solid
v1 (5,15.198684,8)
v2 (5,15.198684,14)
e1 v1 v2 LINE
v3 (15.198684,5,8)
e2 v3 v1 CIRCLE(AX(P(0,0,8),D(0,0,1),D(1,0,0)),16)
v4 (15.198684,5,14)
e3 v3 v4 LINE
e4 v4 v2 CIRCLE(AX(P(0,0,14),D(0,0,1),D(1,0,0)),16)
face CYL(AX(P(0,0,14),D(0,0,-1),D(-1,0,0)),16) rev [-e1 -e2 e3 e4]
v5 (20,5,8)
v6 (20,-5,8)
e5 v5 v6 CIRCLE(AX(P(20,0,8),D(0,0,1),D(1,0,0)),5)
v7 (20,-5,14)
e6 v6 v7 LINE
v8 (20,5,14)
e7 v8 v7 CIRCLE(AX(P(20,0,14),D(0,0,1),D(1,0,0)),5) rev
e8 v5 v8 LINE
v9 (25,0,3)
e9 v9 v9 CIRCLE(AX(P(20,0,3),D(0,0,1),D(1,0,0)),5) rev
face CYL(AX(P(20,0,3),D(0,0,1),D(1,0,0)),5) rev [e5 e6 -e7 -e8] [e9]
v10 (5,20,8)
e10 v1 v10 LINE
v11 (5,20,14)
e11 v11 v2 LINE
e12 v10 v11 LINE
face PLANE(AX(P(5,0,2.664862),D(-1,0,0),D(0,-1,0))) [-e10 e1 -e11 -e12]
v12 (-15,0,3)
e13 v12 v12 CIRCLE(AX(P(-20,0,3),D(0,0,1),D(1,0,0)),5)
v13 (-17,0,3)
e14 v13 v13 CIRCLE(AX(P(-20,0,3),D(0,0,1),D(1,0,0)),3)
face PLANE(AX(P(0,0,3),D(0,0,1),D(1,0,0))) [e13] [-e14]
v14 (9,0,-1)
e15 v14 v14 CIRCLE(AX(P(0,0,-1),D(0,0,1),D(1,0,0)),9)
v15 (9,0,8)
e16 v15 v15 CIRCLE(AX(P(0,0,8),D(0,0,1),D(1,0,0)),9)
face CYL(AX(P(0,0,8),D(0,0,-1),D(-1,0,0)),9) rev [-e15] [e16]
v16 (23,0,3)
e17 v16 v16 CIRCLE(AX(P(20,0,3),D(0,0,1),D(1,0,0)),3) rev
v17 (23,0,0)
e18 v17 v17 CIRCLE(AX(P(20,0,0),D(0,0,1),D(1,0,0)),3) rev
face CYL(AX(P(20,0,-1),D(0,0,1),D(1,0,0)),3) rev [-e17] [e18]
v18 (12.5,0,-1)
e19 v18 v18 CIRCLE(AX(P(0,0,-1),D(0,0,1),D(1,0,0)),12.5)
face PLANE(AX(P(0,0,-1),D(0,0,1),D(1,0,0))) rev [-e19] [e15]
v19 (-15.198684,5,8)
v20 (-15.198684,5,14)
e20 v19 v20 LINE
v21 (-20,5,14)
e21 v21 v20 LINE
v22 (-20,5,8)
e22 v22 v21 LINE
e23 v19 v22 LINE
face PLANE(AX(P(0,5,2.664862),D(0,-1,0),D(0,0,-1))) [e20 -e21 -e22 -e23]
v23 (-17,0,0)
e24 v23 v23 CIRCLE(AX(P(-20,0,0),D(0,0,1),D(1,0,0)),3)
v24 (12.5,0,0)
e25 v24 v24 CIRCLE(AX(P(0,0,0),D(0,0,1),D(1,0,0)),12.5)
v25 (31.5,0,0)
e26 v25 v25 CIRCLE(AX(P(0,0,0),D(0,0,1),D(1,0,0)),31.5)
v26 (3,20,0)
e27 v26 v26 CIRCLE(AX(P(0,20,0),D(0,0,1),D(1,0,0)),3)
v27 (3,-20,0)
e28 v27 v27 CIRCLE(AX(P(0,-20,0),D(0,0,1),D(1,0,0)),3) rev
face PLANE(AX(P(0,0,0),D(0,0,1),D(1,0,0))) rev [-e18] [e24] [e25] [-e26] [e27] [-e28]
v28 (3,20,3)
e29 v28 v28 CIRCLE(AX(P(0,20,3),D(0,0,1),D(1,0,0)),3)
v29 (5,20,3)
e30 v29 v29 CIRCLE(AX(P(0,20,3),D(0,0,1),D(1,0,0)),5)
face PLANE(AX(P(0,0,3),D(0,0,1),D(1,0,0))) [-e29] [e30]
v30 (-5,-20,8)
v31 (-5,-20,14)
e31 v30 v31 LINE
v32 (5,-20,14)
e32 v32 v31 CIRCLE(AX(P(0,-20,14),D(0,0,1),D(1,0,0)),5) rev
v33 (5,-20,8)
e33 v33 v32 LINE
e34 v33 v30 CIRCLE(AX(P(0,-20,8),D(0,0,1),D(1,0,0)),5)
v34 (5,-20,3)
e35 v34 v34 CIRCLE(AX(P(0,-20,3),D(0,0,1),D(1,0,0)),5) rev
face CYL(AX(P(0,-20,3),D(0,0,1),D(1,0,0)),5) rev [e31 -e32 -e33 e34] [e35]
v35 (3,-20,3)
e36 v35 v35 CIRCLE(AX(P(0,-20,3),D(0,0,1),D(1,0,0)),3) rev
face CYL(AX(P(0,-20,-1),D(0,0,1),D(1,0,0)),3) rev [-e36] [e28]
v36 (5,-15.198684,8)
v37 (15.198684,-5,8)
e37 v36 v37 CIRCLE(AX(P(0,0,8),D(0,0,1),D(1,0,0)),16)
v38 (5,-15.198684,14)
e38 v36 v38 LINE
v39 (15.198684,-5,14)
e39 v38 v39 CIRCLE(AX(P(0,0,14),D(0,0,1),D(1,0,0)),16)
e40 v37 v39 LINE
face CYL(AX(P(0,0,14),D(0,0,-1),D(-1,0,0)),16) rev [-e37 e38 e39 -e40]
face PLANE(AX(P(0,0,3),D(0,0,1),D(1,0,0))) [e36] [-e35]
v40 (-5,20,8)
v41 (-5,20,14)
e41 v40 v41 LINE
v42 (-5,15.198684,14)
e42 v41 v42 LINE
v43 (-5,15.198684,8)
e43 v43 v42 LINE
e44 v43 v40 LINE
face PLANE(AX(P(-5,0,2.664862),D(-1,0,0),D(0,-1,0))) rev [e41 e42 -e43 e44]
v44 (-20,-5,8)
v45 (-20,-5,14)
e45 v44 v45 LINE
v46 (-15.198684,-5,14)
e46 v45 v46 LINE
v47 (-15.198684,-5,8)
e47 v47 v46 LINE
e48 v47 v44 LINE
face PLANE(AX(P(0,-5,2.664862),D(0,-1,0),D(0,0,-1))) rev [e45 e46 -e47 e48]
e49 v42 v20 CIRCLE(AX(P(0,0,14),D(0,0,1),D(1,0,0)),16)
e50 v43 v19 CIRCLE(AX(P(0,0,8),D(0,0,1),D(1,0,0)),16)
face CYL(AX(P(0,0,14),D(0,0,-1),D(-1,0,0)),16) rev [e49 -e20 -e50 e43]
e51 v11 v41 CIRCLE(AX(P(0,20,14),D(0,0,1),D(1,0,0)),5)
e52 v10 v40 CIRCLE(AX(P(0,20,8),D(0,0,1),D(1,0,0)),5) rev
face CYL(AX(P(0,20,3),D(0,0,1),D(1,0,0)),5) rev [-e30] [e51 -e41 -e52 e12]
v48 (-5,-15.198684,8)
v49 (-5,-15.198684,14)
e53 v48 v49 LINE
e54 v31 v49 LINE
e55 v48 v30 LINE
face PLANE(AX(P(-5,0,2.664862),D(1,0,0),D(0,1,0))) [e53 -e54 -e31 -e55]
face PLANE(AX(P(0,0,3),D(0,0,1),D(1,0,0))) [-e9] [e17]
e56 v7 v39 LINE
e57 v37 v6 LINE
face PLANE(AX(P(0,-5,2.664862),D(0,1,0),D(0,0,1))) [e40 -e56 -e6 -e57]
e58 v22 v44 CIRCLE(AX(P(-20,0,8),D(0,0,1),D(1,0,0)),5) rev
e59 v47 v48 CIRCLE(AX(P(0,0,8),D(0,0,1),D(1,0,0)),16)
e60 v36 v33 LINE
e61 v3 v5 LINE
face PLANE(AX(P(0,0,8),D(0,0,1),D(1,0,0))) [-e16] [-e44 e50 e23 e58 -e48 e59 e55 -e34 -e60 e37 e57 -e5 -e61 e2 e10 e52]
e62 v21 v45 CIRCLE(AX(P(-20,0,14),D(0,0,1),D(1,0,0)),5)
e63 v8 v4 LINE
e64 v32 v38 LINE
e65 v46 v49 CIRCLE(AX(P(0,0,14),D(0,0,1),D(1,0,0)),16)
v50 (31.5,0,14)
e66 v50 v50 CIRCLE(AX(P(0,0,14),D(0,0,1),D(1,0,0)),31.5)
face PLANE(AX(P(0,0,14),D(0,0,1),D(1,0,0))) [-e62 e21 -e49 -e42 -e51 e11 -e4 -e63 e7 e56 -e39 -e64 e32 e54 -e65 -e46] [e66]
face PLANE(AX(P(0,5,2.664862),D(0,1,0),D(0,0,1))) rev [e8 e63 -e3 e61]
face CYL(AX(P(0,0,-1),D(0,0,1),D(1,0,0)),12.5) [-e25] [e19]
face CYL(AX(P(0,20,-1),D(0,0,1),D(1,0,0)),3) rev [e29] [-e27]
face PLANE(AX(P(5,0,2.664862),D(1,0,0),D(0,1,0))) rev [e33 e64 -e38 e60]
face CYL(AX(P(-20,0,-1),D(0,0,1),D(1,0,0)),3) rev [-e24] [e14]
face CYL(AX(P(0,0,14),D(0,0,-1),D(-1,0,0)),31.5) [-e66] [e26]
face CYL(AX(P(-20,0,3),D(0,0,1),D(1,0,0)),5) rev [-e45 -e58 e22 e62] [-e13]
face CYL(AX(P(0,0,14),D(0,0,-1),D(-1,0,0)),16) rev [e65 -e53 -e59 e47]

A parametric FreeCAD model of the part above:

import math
import FreeCAD as App
import Part
import Sketcher
from FreeCAD import Vector
Q = App.Units.Quantity

doc = App.newDocument("Part")
body = doc.addObject("PartDesign::Body", "Body")

# Sketch on XY plane
sketch1 = doc.addObject("Sketcher::SketchObject", "Sketch")
body.addObject(sketch1)
sketch1.AttachmentSupport = (doc.XY_Plane, [""])
sketch1.MapMode = "FlatFace"
sketch1.addGeometry([
    Part.Circle(Vector(0, 0, 0), Vector(0, 0, 1), 31.5),
    Part.Circle(Vector(0, 0, 0), Vector(0, 0, 1), 16),
], False)
sketch1.addConstraint([
    Sketcher.Constraint("Coincident", 0, 3, -1, 1),
    Sketcher.Constraint("Coincident", 1, 3, -1, 1),
    Sketcher.Constraint("Diameter", 0, Q("63 mm")),
    Sketcher.Constraint("Diameter", 1, Q("32 mm")),
])
pad1 = doc.addObject("PartDesign::Pad", "Pad")
body.addObject(pad1)
pad1.Profile = sketch1
pad1.Length = 14

# Sketch on XY plane
sketch2 = doc.addObject("Sketcher::SketchObject", "Sketch001")
body.addObject(sketch2)
sketch2.AttachmentSupport = (doc.XY_Plane, [""])
sketch2.MapMode = "FlatFace"
sketch2.addGeometry([
    Part.Circle(Vector(0, 0, 0), Vector(0, 0, 1), 16),
    Part.Circle(Vector(0, 0, 0), Vector(0, 0, 1), 9),
], False)
sketch2.addConstraint([
    Sketcher.Constraint("Coincident", 0, 3, -1, 1),
    Sketcher.Constraint("Coincident", 1, 3, -1, 1),
    Sketcher.Constraint("Diameter", 0, Q("32 mm")),
    Sketcher.Constraint("Diameter", 1, Q("18 mm")),
])
pad2 = doc.addObject("PartDesign::Pad", "Pad001")
body.addObject(pad2)
pad2.Profile = sketch2
pad2.Length = 8

# Sketch on XY plane
sketch3 = doc.addObject("Sketcher::SketchObject", "Sketch002")
body.addObject(sketch3)
sketch3.AttachmentSupport = (doc.XY_Plane, [""])
sketch3.MapMode = "FlatFace"
sketch3.addGeometry([
    Part.Circle(Vector(0, 0, 0), Vector(0, 0, 1), 12.5),
    Part.Circle(Vector(0, 0, 0), Vector(0, 0, 1), 9),
], False)
sketch3.addConstraint([
    Sketcher.Constraint("Coincident", 0, 3, -1, 1),
    Sketcher.Constraint("Coincident", 1, 3, -1, 1),
    Sketcher.Constraint("Diameter", 0, Q("25 mm")),
    Sketcher.Constraint("Diameter", 1, Q("18 mm")),
])
pad3 = doc.addObject("PartDesign::Pad", "Pad002")
body.addObject(pad3)
pad3.Profile = sketch3
pad3.Length = 1
pad3.Reversed = True

# Sketch on XY plane
sketch4 = doc.addObject("Sketcher::SketchObject", "Sketch003")
body.addObject(sketch4)
sketch4.AttachmentSupport = (doc.XY_Plane, [""])
sketch4.MapMode = "FlatFace"
sketch4.AttachmentOffset = App.Placement(Vector(0, 0, 14), App.Rotation())
sketch4.addGeometry([
    Part.Circle(Vector(-20, 0, 0), Vector(0, 0, 1), 3),
    Part.Circle(Vector(0, 20, 0), Vector(0, 0, 1), 3),
    Part.Circle(Vector(20, 0, 0), Vector(0, 0, 1), 3),
    Part.Circle(Vector(0, -20, 0), Vector(0, 0, 1), 3),
], False)
sketch4.addConstraint([
    Sketcher.Constraint("Equal", 0, 1),
    Sketcher.Constraint("Equal", 1, 2),
    Sketcher.Constraint("Equal", 2, 3),
    Sketcher.Constraint("Symmetric", 0, 3, 2, 3, -1, 1),
    Sketcher.Constraint("Symmetric", 1, 3, 3, 3, -1, 1),
    Sketcher.Constraint("PointOnObject", 0, 3, -1),
    Sketcher.Constraint("PointOnObject", 1, 3, -2),
    Sketcher.Constraint("Diameter", 0, Q("6 mm")),
    Sketcher.Constraint("DistanceX", 0, 3, -1, 1, Q("20 mm")),
    Sketcher.Constraint("DistanceY", -1, 1, 1, 3, Q("20 mm")),
])
pocket1 = doc.addObject("PartDesign::Pocket", "Pocket")
body.addObject(pocket1)
pocket1.Profile = sketch4
pocket1.Type = "ThroughAll"

# Sketch on XY plane
sketch5 = doc.addObject("Sketcher::SketchObject", "Sketch004")
body.addObject(sketch5)
sketch5.AttachmentSupport = (doc.XY_Plane, [""])
sketch5.MapMode = "FlatFace"
sketch5.AttachmentOffset = App.Placement(Vector(0, 0, 14), App.Rotation())
sketch5.addGeometry([
    Part.LineSegment(Vector(-20, -5, 0), Vector(-15.198684, -5, 0)),  # 0
    Part.ArcOfCircle(Part.Circle(Vector(0, 0, 0), Vector(0, 0, 1), 16), math.radians(-170.37991), math.radians(-161.790043)),  # 1
    Part.ArcOfCircle(Part.Circle(Vector(-20, 0, 0), Vector(0, 0, 1), 5), math.radians(-90), math.radians(-32.328064)),  # 2
    Part.ArcOfCircle(Part.Circle(Vector(-20, 0, 0), Vector(0, 0, 1), 5), math.radians(32.328064), math.radians(90)),  # 3
    Part.ArcOfCircle(Part.Circle(Vector(0, 0, 0), Vector(0, 0, 1), 16), math.radians(161.790043), math.radians(170.37991)),  # 4
    Part.LineSegment(Vector(-15.198684, 5, 0), Vector(-20, 5, 0)),  # 5
    Part.LineSegment(Vector(-5, 20, 0), Vector(-5, 15.198684, 0)),  # 6
    Part.ArcOfCircle(Part.Circle(Vector(0, 0, 0), Vector(0, 0, 1), 16), math.radians(99.62009), math.radians(108.209957)),  # 7
    Part.ArcOfCircle(Part.Circle(Vector(0, 20, 0), Vector(0, 0, 1), 5), math.radians(180), math.radians(237.671936)),  # 8
    Part.LineSegment(Vector(5, 15.198684, 0), Vector(5, 20, 0)),  # 9
    Part.ArcOfCircle(Part.Circle(Vector(0, 20, 0), Vector(0, 0, 1), 5), math.radians(-57.671936), math.radians(0)),  # 10
    Part.ArcOfCircle(Part.Circle(Vector(0, 0, 0), Vector(0, 0, 1), 16), math.radians(71.790043), math.radians(80.37991)),  # 11
    Part.ArcOfCircle(Part.Circle(Vector(0, 0, 0), Vector(0, 0, 1), 16), math.radians(-108.209957), math.radians(-99.62009)),  # 12
    Part.LineSegment(Vector(-5, -15.198684, 0), Vector(-5, -20, 0)),  # 13
    Part.ArcOfCircle(Part.Circle(Vector(0, -20, 0), Vector(0, 0, 1), 5), math.radians(122.328064), math.radians(180)),  # 14
    Part.ArcOfCircle(Part.Circle(Vector(0, -20, 0), Vector(0, 0, 1), 5), math.radians(0), math.radians(57.671936)),  # 15
    Part.LineSegment(Vector(5, -20, 0), Vector(5, -15.198684, 0)),  # 16
    Part.ArcOfCircle(Part.Circle(Vector(0, 0, 0), Vector(0, 0, 1), 16), math.radians(-80.37991), math.radians(-71.790043)),  # 17
    Part.ArcOfCircle(Part.Circle(Vector(0, 0, 0), Vector(0, 0, 1), 16), math.radians(-18.209957), math.radians(-9.62009)),  # 18
    Part.LineSegment(Vector(15.198684, -5, 0), Vector(20, -5, 0)),  # 19
    Part.ArcOfCircle(Part.Circle(Vector(20, 0, 0), Vector(0, 0, 1), 5), math.radians(-147.671936), math.radians(-90)),  # 20
    Part.LineSegment(Vector(20, 5, 0), Vector(15.198684, 5, 0)),  # 21
    Part.ArcOfCircle(Part.Circle(Vector(0, 0, 0), Vector(0, 0, 1), 16), math.radians(9.62009), math.radians(18.209957)),  # 22
    Part.ArcOfCircle(Part.Circle(Vector(20, 0, 0), Vector(0, 0, 1), 5), math.radians(90), math.radians(147.671936)),  # 23
], False)
sketch5.addConstraint([
    Sketcher.Constraint("Coincident", 0, 2, 1, 2),
    Sketcher.Constraint("Coincident", 1, 1, 2, 2),
    Sketcher.Constraint("Tangent", 2, 1, 0, 1),
    Sketcher.Constraint("Coincident", 3, 1, 4, 2),
    Sketcher.Constraint("Coincident", 4, 1, 5, 1),
    Sketcher.Constraint("Tangent", 5, 2, 3, 2),
    Sketcher.Constraint("Coincident", 6, 2, 7, 2),
    Sketcher.Constraint("Coincident", 7, 1, 8, 2),
    Sketcher.Constraint("Tangent", 8, 1, 6, 1),
    Sketcher.Constraint("Tangent", 9, 2, 10, 2),
    Sketcher.Constraint("Coincident", 10, 1, 11, 2),
    Sketcher.Constraint("Coincident", 11, 1, 9, 1),
    Sketcher.Constraint("Coincident", 12, 1, 13, 1),
    Sketcher.Constraint("Tangent", 13, 2, 14, 2),
    Sketcher.Constraint("Coincident", 14, 1, 12, 2),
    Sketcher.Constraint("Tangent", 15, 1, 16, 1),
    Sketcher.Constraint("Coincident", 16, 2, 17, 2),
    Sketcher.Constraint("Coincident", 17, 1, 15, 2),
    Sketcher.Constraint("Coincident", 18, 1, 19, 1),
    Sketcher.Constraint("Tangent", 19, 2, 20, 2),
    Sketcher.Constraint("Coincident", 20, 1, 18, 2),
    Sketcher.Constraint("Coincident", 21, 2, 22, 2),
    Sketcher.Constraint("Coincident", 22, 1, 23, 2),
    Sketcher.Constraint("Tangent", 23, 1, 21, 1),
    Sketcher.Constraint("Horizontal", 0),
    Sketcher.Constraint("Horizontal", 5),
    Sketcher.Constraint("Vertical", 6),
    Sketcher.Constraint("Vertical", 9),
    Sketcher.Constraint("Vertical", 13),
    Sketcher.Constraint("Vertical", 16),
    Sketcher.Constraint("Horizontal", 19),
    Sketcher.Constraint("Horizontal", 21),
    Sketcher.Constraint("Coincident", 1, 3, -1, 1),
    Sketcher.Constraint("Coincident", 4, 3, -1, 1),
    Sketcher.Constraint("Coincident", 7, 3, -1, 1),
    Sketcher.Constraint("Coincident", 11, 3, -1, 1),
    Sketcher.Constraint("Coincident", 12, 3, -1, 1),
    Sketcher.Constraint("Coincident", 17, 3, -1, 1),
    Sketcher.Constraint("Coincident", 18, 3, -1, 1),
    Sketcher.Constraint("Coincident", 22, 3, -1, 1),
    Sketcher.Constraint("Coincident", 3, 3, 2, 3),
    Sketcher.Constraint("Coincident", 10, 3, 8, 3),
    Sketcher.Constraint("Coincident", 15, 3, 14, 3),
    Sketcher.Constraint("Coincident", 23, 3, 20, 3),
    Sketcher.Constraint("Equal", 2, 3),
    Sketcher.Constraint("Equal", 1, 4),
    Sketcher.Constraint("Equal", 4, 7),
    Sketcher.Constraint("Equal", 3, 8),
    Sketcher.Constraint("Equal", 8, 10),
    Sketcher.Constraint("Equal", 7, 11),
    Sketcher.Constraint("Equal", 11, 12),
    Sketcher.Constraint("Equal", 10, 14),
    Sketcher.Constraint("Equal", 14, 15),
    Sketcher.Constraint("Equal", 12, 17),
    Sketcher.Constraint("Equal", 17, 18),
    Sketcher.Constraint("Equal", 15, 20),
    Sketcher.Constraint("Equal", 18, 22),
    Sketcher.Constraint("Equal", 20, 23),
    Sketcher.Constraint("Symmetric", 8, 3, 14, 3, -1, 1),
    Sketcher.Constraint("Symmetric", 2, 3, 20, 3, -1, 1),
    Sketcher.Constraint("PointOnObject", 2, 3, -1),
    Sketcher.Constraint("PointOnObject", 8, 3, -2),
    Sketcher.Constraint("Equal", 21, 6),
    Sketcher.Constraint("Radius", 1, Q("16 mm")),
    Sketcher.Constraint("Radius", 2, Q("5 mm")),
    Sketcher.Constraint("DistanceX", 2, 3, -1, 1, Q("20 mm")),
])
pocket2 = doc.addObject("PartDesign::Pocket", "Pocket001")
body.addObject(pocket2)
pocket2.Profile = sketch5
pocket2.Length = 6

# Sketch on XY plane
sketch6 = doc.addObject("Sketcher::SketchObject", "Sketch005")
body.addObject(sketch6)
sketch6.AttachmentSupport = (doc.XY_Plane, [""])
sketch6.MapMode = "FlatFace"
sketch6.AttachmentOffset = App.Placement(Vector(0, 0, 14), App.Rotation())
sketch6.addGeometry([
    Part.Circle(Vector(-20, 0, 0), Vector(0, 0, 1), 5),
    Part.Circle(Vector(20, 0, 0), Vector(0, 0, 1), 5),
    Part.Circle(Vector(0, 20, 0), Vector(0, 0, 1), 5),
    Part.Circle(Vector(0, -20, 0), Vector(0, 0, 1), 5),
], False)
sketch6.addConstraint([
    Sketcher.Constraint("Equal", 0, 1),
    Sketcher.Constraint("Equal", 1, 2),
    Sketcher.Constraint("Equal", 2, 3),
    Sketcher.Constraint("Symmetric", 0, 3, 1, 3, -1, 1),
    Sketcher.Constraint("Symmetric", 2, 3, 3, 3, -1, 1),
    Sketcher.Constraint("PointOnObject", 0, 3, -1),
    Sketcher.Constraint("PointOnObject", 2, 3, -2),
    Sketcher.Constraint("Diameter", 0, Q("10 mm")),
    Sketcher.Constraint("DistanceX", 0, 3, -1, 1, Q("20 mm")),
    Sketcher.Constraint("DistanceY", -1, 1, 2, 3, Q("20 mm")),
])
pocket3 = doc.addObject("PartDesign::Pocket", "Pocket002")
body.addObject(pocket3)
pocket3.Profile = sketch6
pocket3.Length = 11

doc.recompute()
